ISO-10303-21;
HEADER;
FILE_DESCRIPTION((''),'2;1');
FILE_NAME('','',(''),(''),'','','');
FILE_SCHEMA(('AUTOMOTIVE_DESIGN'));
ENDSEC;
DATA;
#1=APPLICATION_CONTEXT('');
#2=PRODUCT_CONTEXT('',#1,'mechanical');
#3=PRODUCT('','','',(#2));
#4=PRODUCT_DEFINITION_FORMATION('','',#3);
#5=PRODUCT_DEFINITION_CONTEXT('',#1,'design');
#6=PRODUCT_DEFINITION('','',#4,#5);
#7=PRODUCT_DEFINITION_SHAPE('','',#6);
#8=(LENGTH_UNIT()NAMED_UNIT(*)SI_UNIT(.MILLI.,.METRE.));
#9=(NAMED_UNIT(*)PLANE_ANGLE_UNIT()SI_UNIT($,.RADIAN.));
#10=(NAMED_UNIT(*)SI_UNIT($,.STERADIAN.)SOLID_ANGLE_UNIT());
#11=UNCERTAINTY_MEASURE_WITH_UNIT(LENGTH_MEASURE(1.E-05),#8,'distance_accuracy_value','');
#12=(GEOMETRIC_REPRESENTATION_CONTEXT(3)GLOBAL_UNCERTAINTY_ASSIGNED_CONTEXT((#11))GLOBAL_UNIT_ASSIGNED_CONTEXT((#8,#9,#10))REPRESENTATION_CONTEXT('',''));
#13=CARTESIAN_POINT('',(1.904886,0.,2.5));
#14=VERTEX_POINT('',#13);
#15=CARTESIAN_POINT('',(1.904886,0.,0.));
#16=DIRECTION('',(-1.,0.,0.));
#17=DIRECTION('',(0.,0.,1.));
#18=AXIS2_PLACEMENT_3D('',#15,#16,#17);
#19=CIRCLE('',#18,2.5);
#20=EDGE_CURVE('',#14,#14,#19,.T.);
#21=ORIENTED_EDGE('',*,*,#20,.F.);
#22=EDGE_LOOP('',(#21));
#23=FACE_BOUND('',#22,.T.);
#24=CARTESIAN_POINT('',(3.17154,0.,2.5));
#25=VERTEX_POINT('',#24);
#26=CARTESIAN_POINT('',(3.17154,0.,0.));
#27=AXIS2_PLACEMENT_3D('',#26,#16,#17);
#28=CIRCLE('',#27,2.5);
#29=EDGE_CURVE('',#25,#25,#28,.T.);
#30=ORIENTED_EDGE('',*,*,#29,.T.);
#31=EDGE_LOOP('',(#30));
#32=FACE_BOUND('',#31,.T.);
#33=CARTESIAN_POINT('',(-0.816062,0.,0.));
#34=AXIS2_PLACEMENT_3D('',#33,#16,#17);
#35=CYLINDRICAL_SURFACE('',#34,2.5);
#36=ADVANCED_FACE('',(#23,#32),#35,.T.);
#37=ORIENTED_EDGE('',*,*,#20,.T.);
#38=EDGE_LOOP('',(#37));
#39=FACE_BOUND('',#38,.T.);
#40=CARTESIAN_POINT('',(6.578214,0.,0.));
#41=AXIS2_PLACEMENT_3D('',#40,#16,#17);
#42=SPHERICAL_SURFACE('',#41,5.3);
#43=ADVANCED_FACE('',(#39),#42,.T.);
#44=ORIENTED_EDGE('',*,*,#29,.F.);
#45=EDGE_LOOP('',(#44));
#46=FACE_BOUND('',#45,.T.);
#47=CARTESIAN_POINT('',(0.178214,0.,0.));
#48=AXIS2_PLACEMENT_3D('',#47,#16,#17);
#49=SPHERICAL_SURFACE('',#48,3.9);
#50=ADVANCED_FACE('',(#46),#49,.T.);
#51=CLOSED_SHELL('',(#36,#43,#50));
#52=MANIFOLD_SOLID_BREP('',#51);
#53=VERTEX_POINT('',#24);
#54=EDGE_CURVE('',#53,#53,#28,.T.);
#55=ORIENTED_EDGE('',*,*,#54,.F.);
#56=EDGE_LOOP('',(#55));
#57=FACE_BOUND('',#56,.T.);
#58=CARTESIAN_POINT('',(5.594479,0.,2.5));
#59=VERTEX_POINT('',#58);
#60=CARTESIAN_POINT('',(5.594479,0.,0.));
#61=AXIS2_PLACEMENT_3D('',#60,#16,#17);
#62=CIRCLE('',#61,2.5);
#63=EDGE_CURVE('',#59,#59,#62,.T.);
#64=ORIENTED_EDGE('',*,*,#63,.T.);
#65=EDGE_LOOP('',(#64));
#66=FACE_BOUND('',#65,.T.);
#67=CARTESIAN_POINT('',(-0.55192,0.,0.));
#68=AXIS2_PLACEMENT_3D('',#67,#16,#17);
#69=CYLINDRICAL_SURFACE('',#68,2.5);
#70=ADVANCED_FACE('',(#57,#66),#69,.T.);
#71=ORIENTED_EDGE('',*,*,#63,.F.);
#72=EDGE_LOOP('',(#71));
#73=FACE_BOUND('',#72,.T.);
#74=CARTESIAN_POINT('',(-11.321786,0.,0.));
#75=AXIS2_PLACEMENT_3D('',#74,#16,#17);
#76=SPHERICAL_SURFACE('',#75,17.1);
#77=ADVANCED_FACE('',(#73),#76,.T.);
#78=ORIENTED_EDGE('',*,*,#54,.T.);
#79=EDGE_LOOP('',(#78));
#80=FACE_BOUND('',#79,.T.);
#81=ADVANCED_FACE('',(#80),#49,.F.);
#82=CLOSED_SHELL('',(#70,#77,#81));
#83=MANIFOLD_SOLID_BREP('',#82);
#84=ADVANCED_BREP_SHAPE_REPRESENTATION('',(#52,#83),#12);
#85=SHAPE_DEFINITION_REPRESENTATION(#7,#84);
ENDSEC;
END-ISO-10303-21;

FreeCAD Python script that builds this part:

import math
import FreeCAD as App
import Part
import Sketcher

V = App.Vector
Q = App.Units.Quantity

doc = App.newDocument("Part")
body = doc.addObject("PartDesign::Body", "Body")

sketch1 = doc.addObject("Sketcher::SketchObject", "Sketch")
body.addObject(sketch1)
sketch1.AttachmentSupport = (doc.XZ_Plane, [""])
sketch1.MapMode = "FlatFace"
sketch1.addGeometry(Part.ArcOfCircle(Part.Circle(V(6.6, 0, 0), V(0, 0, 1), 5.3), math.radians(180), math.radians(208)), False)
sketch1.addGeometry(Part.LineSegment(V(1.3, 0, 0), V(4.1, 0, 0)), False)
sketch1.addGeometry(Part.ArcOfCircle(Part.Circle(V(0.2, 0, 0), V(0, 0, 1), 3.9), math.radians(-40), math.radians(0)), False)
sketch1.addGeometry(Part.LineSegment(V(3.2, -2.5, 0), V(1.9, -2.5, 0)), False)
sketch1.addConstraint(Sketcher.Constraint("Coincident", 0, 1, 1, 1))
sketch1.addConstraint(Sketcher.Constraint("Coincident", 1, 2, 2, 2))
sketch1.addConstraint(Sketcher.Constraint("Coincident", 2, 1, 3, 1))
sketch1.addConstraint(Sketcher.Constraint("Coincident", 3, 2, 0, 2))
sketch1.addConstraint(Sketcher.Constraint("Horizontal", 1))
sketch1.addConstraint(Sketcher.Constraint("Horizontal", 3))
sketch1.addConstraint(Sketcher.Constraint("PointOnObject", 0, 3, -1))
sketch1.addConstraint(Sketcher.Constraint("PointOnObject", 2, 3, -1))
sketch1.addConstraint(Sketcher.Constraint("PointOnObject", 0, 1, -1))
sketch1.addConstraint(Sketcher.Constraint("Radius", 0, Q("5.3 mm")))
sketch1.addConstraint(Sketcher.Constraint("Radius", 2, Q("3.9 mm")))
sketch1.addConstraint(Sketcher.Constraint("DistanceX", 1, 1, 1, 2, Q("2.8 mm")))
sketch1.addConstraint(Sketcher.Constraint("DistanceY", 2, 1, -1, 1, Q("2.5 mm")))
sketch1.addConstraint(Sketcher.Constraint("DistanceX", -1, 1, 2, 1, Q("3.17154 mm")))
revolution = doc.addObject("PartDesign::Revolution", "Revolution")
body.addObject(revolution)
revolution.Profile = sketch1
revolution.ReferenceAxis = (sketch1, ["H_Axis"])
revolution.Angle = 360
body2 = doc.addObject("PartDesign::Body", "Body001")

sketch2 = doc.addObject("Sketcher::SketchObject", "Sketch001")
body2.addObject(sketch2)
sketch2.AttachmentSupport = (doc.getObject("XZ_Plane001"), [""])
sketch2.MapMode = "FlatFace"
sketch2.addGeometry(Part.LineSegment(V(5.6, -2.5, 0), V(3.2, -2.5, 0)), False)
sketch2.addGeometry(Part.ArcOfCircle(Part.Circle(V(0.2, 0, 0), V(0, 0, 1), 3.9), math.radians(-40), math.radians(0)), False)
sketch2.addGeometry(Part.LineSegment(V(4.1, 0, 0), V(5.8, 0, 0)), False)
sketch2.addGeometry(Part.ArcOfCircle(Part.Circle(V(-11.3, 0, 0), V(0, 0, 1), 17.1), math.radians(-8.41), math.radians(0)), False)
sketch2.addConstraint(Sketcher.Constraint("Coincident", 0, 2, 1, 1))
sketch2.addConstraint(Sketcher.Constraint("Coincident", 1, 2, 2, 1))
sketch2.addConstraint(Sketcher.Constraint("Coincident", 2, 2, 3, 2))
sketch2.addConstraint(Sketcher.Constraint("Coincident", 3, 1, 0, 1))
sketch2.addConstraint(Sketcher.Constraint("Horizontal", 0))
sketch2.addConstraint(Sketcher.Constraint("Horizontal", 2))
sketch2.addConstraint(Sketcher.Constraint("PointOnObject", 1, 3, -1))
sketch2.addConstraint(Sketcher.Constraint("PointOnObject", 3, 3, -1))
sketch2.addConstraint(Sketcher.Constraint("PointOnObject", 1, 2, -1))
sketch2.addConstraint(Sketcher.Constraint("Radius", 1, Q("3.9 mm")))
sketch2.addConstraint(Sketcher.Constraint("Radius", 3, Q("17.1 mm")))
sketch2.addConstraint(Sketcher.Constraint("DistanceX", 2, 1, 2, 2, Q("1.7 mm")))
sketch2.addConstraint(Sketcher.Constraint("DistanceY", 0, 2, -1, 1, Q("2.5 mm")))
sketch2.addConstraint(Sketcher.Constraint("DistanceX", -1, 1, 0, 2, Q("3.17154 mm")))
revolution2 = doc.addObject("PartDesign::Revolution", "Revolution001")
body2.addObject(revolution2)
revolution2.Profile = sketch2
revolution2.ReferenceAxis = (sketch2, ["H_Axis"])
revolution2.Angle = 360

doc.recompute()
